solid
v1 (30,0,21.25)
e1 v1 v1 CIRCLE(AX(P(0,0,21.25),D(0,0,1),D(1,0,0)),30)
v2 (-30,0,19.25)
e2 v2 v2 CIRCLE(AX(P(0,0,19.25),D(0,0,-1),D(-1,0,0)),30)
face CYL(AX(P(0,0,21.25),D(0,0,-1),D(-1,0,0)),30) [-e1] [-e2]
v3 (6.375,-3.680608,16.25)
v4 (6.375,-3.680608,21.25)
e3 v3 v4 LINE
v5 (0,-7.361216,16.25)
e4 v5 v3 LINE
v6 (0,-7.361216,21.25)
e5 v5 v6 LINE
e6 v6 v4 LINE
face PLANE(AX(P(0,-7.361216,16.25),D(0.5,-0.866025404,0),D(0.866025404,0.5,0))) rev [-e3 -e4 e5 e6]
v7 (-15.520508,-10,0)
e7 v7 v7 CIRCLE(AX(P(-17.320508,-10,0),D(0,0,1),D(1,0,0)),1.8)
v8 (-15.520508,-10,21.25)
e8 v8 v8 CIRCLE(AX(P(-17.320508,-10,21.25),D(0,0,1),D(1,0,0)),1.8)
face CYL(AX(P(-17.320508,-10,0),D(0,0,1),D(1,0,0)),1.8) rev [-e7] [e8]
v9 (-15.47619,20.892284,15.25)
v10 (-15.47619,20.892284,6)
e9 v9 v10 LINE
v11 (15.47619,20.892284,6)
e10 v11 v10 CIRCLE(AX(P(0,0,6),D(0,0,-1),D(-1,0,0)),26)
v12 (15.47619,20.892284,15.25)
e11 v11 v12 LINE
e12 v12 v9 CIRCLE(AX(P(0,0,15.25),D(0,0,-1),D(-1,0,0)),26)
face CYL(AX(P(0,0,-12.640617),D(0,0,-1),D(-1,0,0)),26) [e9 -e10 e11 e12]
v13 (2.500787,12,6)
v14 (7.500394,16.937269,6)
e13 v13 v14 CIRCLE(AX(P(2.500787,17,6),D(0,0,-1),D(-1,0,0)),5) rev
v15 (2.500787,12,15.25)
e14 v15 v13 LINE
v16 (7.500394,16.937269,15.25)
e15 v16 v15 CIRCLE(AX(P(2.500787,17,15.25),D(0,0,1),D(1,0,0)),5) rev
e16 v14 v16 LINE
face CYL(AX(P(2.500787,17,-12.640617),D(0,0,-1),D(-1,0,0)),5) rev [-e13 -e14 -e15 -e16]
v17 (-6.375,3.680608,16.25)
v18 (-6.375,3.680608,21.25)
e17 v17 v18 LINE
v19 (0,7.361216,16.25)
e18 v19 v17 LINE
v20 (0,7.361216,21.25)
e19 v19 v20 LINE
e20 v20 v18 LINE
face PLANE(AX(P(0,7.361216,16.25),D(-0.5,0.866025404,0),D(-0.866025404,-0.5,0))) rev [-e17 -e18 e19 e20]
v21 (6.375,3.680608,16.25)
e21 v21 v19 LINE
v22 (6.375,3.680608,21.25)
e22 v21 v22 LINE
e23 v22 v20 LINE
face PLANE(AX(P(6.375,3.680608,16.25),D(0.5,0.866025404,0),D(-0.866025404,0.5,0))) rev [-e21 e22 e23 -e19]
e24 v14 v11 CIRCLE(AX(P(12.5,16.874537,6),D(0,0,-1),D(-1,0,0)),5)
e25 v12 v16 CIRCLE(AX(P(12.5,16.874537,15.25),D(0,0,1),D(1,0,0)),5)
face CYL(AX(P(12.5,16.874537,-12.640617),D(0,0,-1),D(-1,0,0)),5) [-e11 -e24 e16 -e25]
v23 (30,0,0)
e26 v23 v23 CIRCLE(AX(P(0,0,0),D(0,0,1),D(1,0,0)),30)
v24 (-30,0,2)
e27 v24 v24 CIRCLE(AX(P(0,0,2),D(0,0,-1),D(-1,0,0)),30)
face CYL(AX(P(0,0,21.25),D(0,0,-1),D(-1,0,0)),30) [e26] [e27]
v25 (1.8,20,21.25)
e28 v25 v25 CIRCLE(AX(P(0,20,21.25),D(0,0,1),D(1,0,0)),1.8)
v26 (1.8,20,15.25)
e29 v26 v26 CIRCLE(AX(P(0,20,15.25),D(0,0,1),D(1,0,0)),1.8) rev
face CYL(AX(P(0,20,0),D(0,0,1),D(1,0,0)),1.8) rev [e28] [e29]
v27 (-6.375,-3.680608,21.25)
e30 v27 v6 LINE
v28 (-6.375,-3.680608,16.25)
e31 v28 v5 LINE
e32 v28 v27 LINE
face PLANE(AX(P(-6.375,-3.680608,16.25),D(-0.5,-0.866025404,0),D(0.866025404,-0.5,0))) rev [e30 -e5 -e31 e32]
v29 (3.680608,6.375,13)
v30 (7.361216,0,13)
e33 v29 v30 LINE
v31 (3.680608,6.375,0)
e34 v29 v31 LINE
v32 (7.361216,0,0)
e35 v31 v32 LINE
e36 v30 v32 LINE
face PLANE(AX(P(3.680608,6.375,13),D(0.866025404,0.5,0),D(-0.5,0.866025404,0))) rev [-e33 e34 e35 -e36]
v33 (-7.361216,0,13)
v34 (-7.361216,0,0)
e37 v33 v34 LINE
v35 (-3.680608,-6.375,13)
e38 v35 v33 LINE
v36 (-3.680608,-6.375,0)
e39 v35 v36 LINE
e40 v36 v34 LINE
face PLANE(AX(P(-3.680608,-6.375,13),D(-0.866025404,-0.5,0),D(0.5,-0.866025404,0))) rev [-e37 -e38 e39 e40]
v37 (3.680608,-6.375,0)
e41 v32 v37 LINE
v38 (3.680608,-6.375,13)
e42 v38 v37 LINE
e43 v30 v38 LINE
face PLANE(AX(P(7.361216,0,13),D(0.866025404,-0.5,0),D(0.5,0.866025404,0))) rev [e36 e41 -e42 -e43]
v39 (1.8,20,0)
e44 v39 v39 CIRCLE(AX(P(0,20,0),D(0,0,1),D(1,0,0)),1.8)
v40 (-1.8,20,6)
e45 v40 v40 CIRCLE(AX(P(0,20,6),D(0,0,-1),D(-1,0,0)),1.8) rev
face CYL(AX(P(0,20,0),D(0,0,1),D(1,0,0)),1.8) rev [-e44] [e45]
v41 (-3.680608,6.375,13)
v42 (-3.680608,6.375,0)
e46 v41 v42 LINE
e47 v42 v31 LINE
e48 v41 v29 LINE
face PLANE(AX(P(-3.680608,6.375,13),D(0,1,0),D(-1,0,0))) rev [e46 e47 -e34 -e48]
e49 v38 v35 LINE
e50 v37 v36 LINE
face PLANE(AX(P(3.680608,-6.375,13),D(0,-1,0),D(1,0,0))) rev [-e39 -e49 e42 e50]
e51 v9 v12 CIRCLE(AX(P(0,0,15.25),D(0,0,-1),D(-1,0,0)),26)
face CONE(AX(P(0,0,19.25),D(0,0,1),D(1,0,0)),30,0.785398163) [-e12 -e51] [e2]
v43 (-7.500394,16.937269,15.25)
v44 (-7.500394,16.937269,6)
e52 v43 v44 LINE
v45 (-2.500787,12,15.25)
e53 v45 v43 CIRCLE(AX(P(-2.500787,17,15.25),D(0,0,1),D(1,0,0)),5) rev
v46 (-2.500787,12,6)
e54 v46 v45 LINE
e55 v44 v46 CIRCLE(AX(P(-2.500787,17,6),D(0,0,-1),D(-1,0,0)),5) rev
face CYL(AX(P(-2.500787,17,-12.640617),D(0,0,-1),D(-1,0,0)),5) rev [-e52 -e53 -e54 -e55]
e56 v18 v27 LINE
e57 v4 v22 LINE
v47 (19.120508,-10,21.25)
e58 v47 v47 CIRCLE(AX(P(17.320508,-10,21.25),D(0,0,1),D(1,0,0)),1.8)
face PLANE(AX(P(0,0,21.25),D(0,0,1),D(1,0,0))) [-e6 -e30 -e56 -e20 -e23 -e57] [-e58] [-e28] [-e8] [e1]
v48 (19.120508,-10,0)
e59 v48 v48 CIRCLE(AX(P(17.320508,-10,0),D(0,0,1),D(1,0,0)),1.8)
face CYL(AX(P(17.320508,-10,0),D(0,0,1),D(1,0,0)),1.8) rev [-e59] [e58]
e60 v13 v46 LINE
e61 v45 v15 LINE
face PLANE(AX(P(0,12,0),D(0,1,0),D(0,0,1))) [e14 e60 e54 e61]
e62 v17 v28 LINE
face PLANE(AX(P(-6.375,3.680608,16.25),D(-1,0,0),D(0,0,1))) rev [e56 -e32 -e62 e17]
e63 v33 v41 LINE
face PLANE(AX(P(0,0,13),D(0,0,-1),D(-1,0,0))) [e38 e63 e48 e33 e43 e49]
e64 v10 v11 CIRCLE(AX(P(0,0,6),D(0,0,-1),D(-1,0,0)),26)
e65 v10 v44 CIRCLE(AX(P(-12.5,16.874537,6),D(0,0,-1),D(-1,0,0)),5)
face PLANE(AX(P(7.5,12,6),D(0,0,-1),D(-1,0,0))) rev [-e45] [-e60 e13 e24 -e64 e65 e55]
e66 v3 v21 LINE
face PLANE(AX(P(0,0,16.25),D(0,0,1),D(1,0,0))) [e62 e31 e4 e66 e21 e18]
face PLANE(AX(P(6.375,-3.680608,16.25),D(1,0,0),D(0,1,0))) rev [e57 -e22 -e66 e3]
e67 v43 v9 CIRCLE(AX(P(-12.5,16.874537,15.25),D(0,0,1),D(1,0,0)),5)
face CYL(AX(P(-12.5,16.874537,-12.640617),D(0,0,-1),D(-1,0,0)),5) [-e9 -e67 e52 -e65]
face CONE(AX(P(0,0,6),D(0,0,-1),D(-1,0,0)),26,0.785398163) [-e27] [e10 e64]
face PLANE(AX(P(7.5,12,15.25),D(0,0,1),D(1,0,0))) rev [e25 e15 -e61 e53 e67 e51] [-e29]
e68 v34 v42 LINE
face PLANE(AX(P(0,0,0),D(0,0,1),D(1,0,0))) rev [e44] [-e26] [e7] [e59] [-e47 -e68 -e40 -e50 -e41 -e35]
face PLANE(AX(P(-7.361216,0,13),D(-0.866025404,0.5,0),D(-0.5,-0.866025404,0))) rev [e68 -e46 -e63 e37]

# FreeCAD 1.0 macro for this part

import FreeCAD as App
import Part
import Sketcher
Q = App.Units.Quantity


def edges_at(feature, points):
    """Names of the edges that pass closest to the given points."""
    edges = feature.Shape.Edges
    near = lambda p: min(range(len(edges)), key=lambda i: edges[i].distToShape(Part.Vertex(*p))[0])
    return sorted({f"Edge{near(p) + 1}" for p in points})

doc = App.newDocument("Part")
body = doc.addObject("PartDesign::Body", "Body")

# Sketch on XY plane
sketch1 = body.newObject("Sketcher::SketchObject", "Sketch")
sketch1.AttachmentSupport = (doc.getObject("XY_Plane"), [""])
sketch1.MapMode = "FlatFace"
sketch1.addGeometry(Part.Circle(App.Vector(0, 0, 0), App.Vector(0, 0, 1), 30), False)
sketch1.addConstraint(Sketcher.Constraint("Coincident", 0, 3, -1, 1))
sketch1.addConstraint(Sketcher.Constraint("Diameter", 0, Q("60 mm")))
pad1 = body.newObject("PartDesign::Pad", "Pad")
pad1.Profile = sketch1
pad1.Length = 21.25

# Sketch on XY plane
sketch2 = body.newObject("Sketcher::SketchObject", "Sketch001")
sketch2.AttachmentSupport = (doc.getObject("XY_Plane"), [""])
sketch2.MapMode = "FlatFace"
sketch2.AttachmentOffset = App.Placement(App.Vector(0, 0, 21.25), App.Rotation())
sketch2.addGeometry(Part.LineSegment(App.Vector(0, 7, 0), App.Vector(-6, 4, 0)), False)
sketch2.addGeometry(Part.LineSegment(App.Vector(-6, 4, 0), App.Vector(-6, -4, 0)), False)
sketch2.addGeometry(Part.LineSegment(App.Vector(-6, -4, 0), App.Vector(0, -7, 0)), False)
sketch2.addGeometry(Part.LineSegment(App.Vector(0, -7, 0), App.Vector(6, -4, 0)), False)
sketch2.addGeometry(Part.LineSegment(App.Vector(6, -4, 0), App.Vector(6, 4, 0)), False)
sketch2.addGeometry(Part.LineSegment(App.Vector(6, 4, 0), App.Vector(0, 7, 0)), False)
sketch2.addConstraint(Sketcher.Constraint("Coincident", 0, 2, 1, 1))
sketch2.addConstraint(Sketcher.Constraint("Coincident", 1, 2, 2, 1))
sketch2.addConstraint(Sketcher.Constraint("Coincident", 2, 2, 3, 1))
sketch2.addConstraint(Sketcher.Constraint("Coincident", 3, 2, 4, 1))
sketch2.addConstraint(Sketcher.Constraint("Coincident", 4, 2, 5, 1))
sketch2.addConstraint(Sketcher.Constraint("Coincident", 5, 2, 0, 1))
sketch2.addConstraint(Sketcher.Constraint("Vertical", 1))
sketch2.addConstraint(Sketcher.Constraint("Vertical", 4))
sketch2.addConstraint(Sketcher.Constraint("Symmetric", 0, 2, 3, 2, -1, 1))
sketch2.addConstraint(Sketcher.Constraint("Symmetric", 2, 2, 5, 2, -1, 1))
sketch2.addConstraint(Sketcher.Constraint("PointOnObject", 2, 2, -2))
sketch2.addConstraint(Sketcher.Constraint("Parallel", 2, 5))
sketch2.addConstraint(Sketcher.Constraint("Horizontal", 1, 2, 3, 2))
sketch2.addConstraint(Sketcher.Constraint("Angle", 0, Q("-150 deg")))
sketch2.addConstraint(Sketcher.Constraint("DistanceX", 1, 2, 3, 2, Q("12.75 mm")))
sketch2.addConstraint(Sketcher.Constraint("DistanceY", 1, 2, 1, 1, Q("7.361216 mm")))
pocket1 = body.newObject("PartDesign::Pocket", "Pocket")
pocket1.Profile = sketch2
pocket1.Length = 5

# Sketch on XZ plane
sketch3 = body.newObject("Sketcher::SketchObject", "Sketch002")
sketch3.AttachmentSupport = (doc.getObject("XZ_Plane"), [""])
sketch3.MapMode = "FlatFace"
sketch3.addGeometry(Part.LineSegment(App.Vector(26, 15, 0), App.Vector(30, 19, 0)), False)
sketch3.addGeometry(Part.LineSegment(App.Vector(30, 19, 0), App.Vector(30, 2, 0)), False)
sketch3.addGeometry(Part.LineSegment(App.Vector(30, 2, 0), App.Vector(26, 6, 0)), False)
sketch3.addGeometry(Part.LineSegment(App.Vector(26, 6, 0), App.Vector(26, 15, 0)), False)
sketch3.addConstraint(Sketcher.Constraint("Coincident", 0, 2, 1, 1))
sketch3.addConstraint(Sketcher.Constraint("Coincident", 1, 2, 2, 1))
sketch3.addConstraint(Sketcher.Constraint("Coincident", 2, 2, 3, 1))
sketch3.addConstraint(Sketcher.Constraint("Coincident", 3, 2, 0, 1))
sketch3.addConstraint(Sketcher.Constraint("Vertical", 1))
sketch3.addConstraint(Sketcher.Constraint("Vertical", 3))
sketch3.addConstraint(Sketcher.Constraint("Perpendicular", 0, 2))
sketch3.addConstraint(Sketcher.Constraint("Equal", 0, 2))
sketch3.addConstraint(Sketcher.Constraint("DistanceX", -1, 1, 0, 2, Q("30 mm")))
sketch3.addConstraint(Sketcher.Constraint("DistanceY", -1, 1, 1, 2, Q("2 mm")))
sketch3.addConstraint(Sketcher.Constraint("DistanceX", -1, 1, 2, 2, Q("26 mm")))
sketch3.addConstraint(Sketcher.Constraint("DistanceY", 1, 2, 1, 1, Q("17.25 mm")))
groove = body.newObject("PartDesign::Groove", "Groove")
groove.Profile = sketch3
groove.ReferenceAxis = (sketch3, ["V_Axis"])
groove.Angle = 360

# Sketch on XY plane
sketch4 = body.newObject("Sketcher::SketchObject", "Sketch003")
sketch4.AttachmentSupport = (doc.getObject("XY_Plane"), [""])
sketch4.MapMode = "FlatFace"
sketch4.AttachmentOffset = App.Placement(App.Vector(0, 0, 21.25), App.Rotation())
sketch4.addGeometry(Part.Circle(App.Vector(-17.3, -10, 0), App.Vector(0, 0, 1), 1.8), False)
sketch4.addGeometry(Part.Circle(App.Vector(17.3, -10, 0), App.Vector(0, 0, 1), 1.8), False)
sketch4.addGeometry(Part.Circle(App.Vector(0, 20, 0), App.Vector(0, 0, 1), 1.8), False)
sketch4.addConstraint(Sketcher.Constraint("Equal", 0, 1))
sketch4.addConstraint(Sketcher.Constraint("Equal", 1, 2))
sketch4.addConstraint(Sketcher.Constraint("Symmetric", 0, 3, 1, 3, -2))
sketch4.addConstraint(Sketcher.Constraint("PointOnObject", 2, 3, -2))
sketch4.addConstraint(Sketcher.Constraint("Diameter", 0, Q("3.6 mm")))
sketch4.addConstraint(Sketcher.Constraint("DistanceY", 0, 3, -1, 1, Q("10 mm")))
sketch4.addConstraint(Sketcher.Constraint("DistanceY", -1, 1, 2, 3, Q("20 mm")))
sketch4.addConstraint(Sketcher.Constraint("DistanceX", 0, 3, -1, 1, Q("17.320508 mm")))
pocket2 = body.newObject("PartDesign::Pocket", "Pocket001")
pocket2.Profile = sketch4
pocket2.Type = "ThroughAll"

# Sketch on XY plane
sketch5 = body.newObject("Sketcher::SketchObject", "Sketch004")
sketch5.AttachmentSupport = (doc.getObject("XY_Plane"), [""])
sketch5.MapMode = "FlatFace"
sketch5.addGeometry(Part.LineSegment(App.Vector(-7, 0, 0), App.Vector(-4, 6, 0)), False)
sketch5.addGeometry(Part.LineSegment(App.Vector(-4, 6, 0), App.Vector(4, 6, 0)), False)
sketch5.addGeometry(Part.LineSegment(App.Vector(4, 6, 0), App.Vector(7, 0, 0)), False)
sketch5.addGeometry(Part.LineSegment(App.Vector(7, 0, 0), App.Vector(4, -6, 0)), False)
sketch5.addGeometry(Part.LineSegment(App.Vector(4, -6, 0), App.Vector(-4, -6, 0)), False)
sketch5.addGeometry(Part.LineSegment(App.Vector(-4, -6, 0), App.Vector(-7, 0, 0)), False)
sketch5.addConstraint(Sketcher.Constraint("Coincident", 0, 2, 1, 1))
sketch5.addConstraint(Sketcher.Constraint("Coincident", 1, 2, 2, 1))
sketch5.addConstraint(Sketcher.Constraint("Coincident", 2, 2, 3, 1))
sketch5.addConstraint(Sketcher.Constraint("Coincident", 3, 2, 4, 1))
sketch5.addConstraint(Sketcher.Constraint("Coincident", 4, 2, 5, 1))
sketch5.addConstraint(Sketcher.Constraint("Coincident", 5, 2, 0, 1))
sketch5.addConstraint(Sketcher.Constraint("Horizontal", 1))
sketch5.addConstraint(Sketcher.Constraint("Horizontal", 4))
sketch5.addConstraint(Sketcher.Constraint("Symmetric", 0, 2, 3, 2, -1, 1))
sketch5.addConstraint(Sketcher.Constraint("Symmetric", 2, 2, 5, 2, -1, 1))
sketch5.addConstraint(Sketcher.Constraint("PointOnObject", 2, 2, -1))
sketch5.addConstraint(Sketcher.Constraint("Parallel", 2, 5))
sketch5.addConstraint(Sketcher.Constraint("Vertical", 1, 2, 3, 2))
sketch5.addConstraint(Sketcher.Constraint("Angle", 0, Q("60 deg")))
sketch5.addConstraint(Sketcher.Constraint("DistanceY", 3, 2, 1, 2, Q("12.75 mm")))
sketch5.addConstraint(Sketcher.Constraint("DistanceX", 1, 1, 1, 2, Q("7.361216 mm")))
pocket3 = body.newObject("PartDesign::Pocket", "Pocket002")
pocket3.Profile = sketch5
pocket3.Length = 13
pocket3.Reversed = True

# Sketch on XZ plane
sketch6 = body.newObject("Sketcher::SketchObject", "Sketch005")
sketch6.AttachmentSupport = (doc.getObject("XZ_Plane"), [""])
sketch6.MapMode = "FlatFace"
sketch6.AttachmentOffset = App.Placement(App.Vector(0, 0, -40), App.Rotation())
sketch6.addGeometry(Part.LineSegment(App.Vector(-8, 6, 0), App.Vector(-8, 15, 0)), False)
sketch6.addGeometry(Part.LineSegment(App.Vector(-8, 15, 0), App.Vector(8, 15, 0)), False)
sketch6.addGeometry(Part.LineSegment(App.Vector(8, 15, 0), App.Vector(8, 6, 0)), False)
sketch6.addGeometry(Part.LineSegment(App.Vector(8, 6, 0), App.Vector(-8, 6, 0)), False)
sketch6.addConstraint(Sketcher.Constraint("Coincident", 0, 2, 1, 1))
sketch6.addConstraint(Sketcher.Constraint("Coincident", 1, 2, 2, 1))
sketch6.addConstraint(Sketcher.Constraint("Coincident", 2, 2, 3, 1))
sketch6.addConstraint(Sketcher.Constraint("Coincident", 3, 2, 0, 1))
sketch6.addConstraint(Sketcher.Constraint("Vertical", 0))
sketch6.addConstraint(Sketcher.Constraint("Horizontal", 1))
sketch6.addConstraint(Sketcher.Constraint("Vertical", 2))
sketch6.addConstraint(Sketcher.Constraint("Horizontal", 3))
sketch6.addConstraint(Sketcher.Constraint("DistanceX", 1, 1, 1, 2, Q("15 mm")))
sketch6.addConstraint(Sketcher.Constraint("DistanceY", -1, 1, 2, 2, Q("6 mm")))
sketch6.addConstraint(Sketcher.Constraint("DistanceY", 0, 1, 0, 2, Q("9.25 mm")))
sketch6.addConstraint(Sketcher.Constraint("DistanceX", 0, 2, -1, 1, Q("7.5 mm")))
pocket4 = body.newObject("PartDesign::Pocket", "Pocket003")
pocket4.Profile = sketch6
pocket4.Length = 28
pocket4.Reversed = True
doc.recompute()

fillet = body.newObject("PartDesign::Fillet", "Fillet")
fillet.Base = (pocket4, edges_at(pocket4, [(-7.5, 24.895, 10.625), (7.5, 24.895, 10.625)]))
fillet.Radius = 5
doc.recompute()

fillet2 = body.newObject("PartDesign::Fillet", "Fillet001")
fillet2.Base = (fillet, edges_at(fillet, [(7.5, 12, 10.625), (-7.5, 12, 10.625)]))
fillet2.Radius = 5

doc.recompute()
